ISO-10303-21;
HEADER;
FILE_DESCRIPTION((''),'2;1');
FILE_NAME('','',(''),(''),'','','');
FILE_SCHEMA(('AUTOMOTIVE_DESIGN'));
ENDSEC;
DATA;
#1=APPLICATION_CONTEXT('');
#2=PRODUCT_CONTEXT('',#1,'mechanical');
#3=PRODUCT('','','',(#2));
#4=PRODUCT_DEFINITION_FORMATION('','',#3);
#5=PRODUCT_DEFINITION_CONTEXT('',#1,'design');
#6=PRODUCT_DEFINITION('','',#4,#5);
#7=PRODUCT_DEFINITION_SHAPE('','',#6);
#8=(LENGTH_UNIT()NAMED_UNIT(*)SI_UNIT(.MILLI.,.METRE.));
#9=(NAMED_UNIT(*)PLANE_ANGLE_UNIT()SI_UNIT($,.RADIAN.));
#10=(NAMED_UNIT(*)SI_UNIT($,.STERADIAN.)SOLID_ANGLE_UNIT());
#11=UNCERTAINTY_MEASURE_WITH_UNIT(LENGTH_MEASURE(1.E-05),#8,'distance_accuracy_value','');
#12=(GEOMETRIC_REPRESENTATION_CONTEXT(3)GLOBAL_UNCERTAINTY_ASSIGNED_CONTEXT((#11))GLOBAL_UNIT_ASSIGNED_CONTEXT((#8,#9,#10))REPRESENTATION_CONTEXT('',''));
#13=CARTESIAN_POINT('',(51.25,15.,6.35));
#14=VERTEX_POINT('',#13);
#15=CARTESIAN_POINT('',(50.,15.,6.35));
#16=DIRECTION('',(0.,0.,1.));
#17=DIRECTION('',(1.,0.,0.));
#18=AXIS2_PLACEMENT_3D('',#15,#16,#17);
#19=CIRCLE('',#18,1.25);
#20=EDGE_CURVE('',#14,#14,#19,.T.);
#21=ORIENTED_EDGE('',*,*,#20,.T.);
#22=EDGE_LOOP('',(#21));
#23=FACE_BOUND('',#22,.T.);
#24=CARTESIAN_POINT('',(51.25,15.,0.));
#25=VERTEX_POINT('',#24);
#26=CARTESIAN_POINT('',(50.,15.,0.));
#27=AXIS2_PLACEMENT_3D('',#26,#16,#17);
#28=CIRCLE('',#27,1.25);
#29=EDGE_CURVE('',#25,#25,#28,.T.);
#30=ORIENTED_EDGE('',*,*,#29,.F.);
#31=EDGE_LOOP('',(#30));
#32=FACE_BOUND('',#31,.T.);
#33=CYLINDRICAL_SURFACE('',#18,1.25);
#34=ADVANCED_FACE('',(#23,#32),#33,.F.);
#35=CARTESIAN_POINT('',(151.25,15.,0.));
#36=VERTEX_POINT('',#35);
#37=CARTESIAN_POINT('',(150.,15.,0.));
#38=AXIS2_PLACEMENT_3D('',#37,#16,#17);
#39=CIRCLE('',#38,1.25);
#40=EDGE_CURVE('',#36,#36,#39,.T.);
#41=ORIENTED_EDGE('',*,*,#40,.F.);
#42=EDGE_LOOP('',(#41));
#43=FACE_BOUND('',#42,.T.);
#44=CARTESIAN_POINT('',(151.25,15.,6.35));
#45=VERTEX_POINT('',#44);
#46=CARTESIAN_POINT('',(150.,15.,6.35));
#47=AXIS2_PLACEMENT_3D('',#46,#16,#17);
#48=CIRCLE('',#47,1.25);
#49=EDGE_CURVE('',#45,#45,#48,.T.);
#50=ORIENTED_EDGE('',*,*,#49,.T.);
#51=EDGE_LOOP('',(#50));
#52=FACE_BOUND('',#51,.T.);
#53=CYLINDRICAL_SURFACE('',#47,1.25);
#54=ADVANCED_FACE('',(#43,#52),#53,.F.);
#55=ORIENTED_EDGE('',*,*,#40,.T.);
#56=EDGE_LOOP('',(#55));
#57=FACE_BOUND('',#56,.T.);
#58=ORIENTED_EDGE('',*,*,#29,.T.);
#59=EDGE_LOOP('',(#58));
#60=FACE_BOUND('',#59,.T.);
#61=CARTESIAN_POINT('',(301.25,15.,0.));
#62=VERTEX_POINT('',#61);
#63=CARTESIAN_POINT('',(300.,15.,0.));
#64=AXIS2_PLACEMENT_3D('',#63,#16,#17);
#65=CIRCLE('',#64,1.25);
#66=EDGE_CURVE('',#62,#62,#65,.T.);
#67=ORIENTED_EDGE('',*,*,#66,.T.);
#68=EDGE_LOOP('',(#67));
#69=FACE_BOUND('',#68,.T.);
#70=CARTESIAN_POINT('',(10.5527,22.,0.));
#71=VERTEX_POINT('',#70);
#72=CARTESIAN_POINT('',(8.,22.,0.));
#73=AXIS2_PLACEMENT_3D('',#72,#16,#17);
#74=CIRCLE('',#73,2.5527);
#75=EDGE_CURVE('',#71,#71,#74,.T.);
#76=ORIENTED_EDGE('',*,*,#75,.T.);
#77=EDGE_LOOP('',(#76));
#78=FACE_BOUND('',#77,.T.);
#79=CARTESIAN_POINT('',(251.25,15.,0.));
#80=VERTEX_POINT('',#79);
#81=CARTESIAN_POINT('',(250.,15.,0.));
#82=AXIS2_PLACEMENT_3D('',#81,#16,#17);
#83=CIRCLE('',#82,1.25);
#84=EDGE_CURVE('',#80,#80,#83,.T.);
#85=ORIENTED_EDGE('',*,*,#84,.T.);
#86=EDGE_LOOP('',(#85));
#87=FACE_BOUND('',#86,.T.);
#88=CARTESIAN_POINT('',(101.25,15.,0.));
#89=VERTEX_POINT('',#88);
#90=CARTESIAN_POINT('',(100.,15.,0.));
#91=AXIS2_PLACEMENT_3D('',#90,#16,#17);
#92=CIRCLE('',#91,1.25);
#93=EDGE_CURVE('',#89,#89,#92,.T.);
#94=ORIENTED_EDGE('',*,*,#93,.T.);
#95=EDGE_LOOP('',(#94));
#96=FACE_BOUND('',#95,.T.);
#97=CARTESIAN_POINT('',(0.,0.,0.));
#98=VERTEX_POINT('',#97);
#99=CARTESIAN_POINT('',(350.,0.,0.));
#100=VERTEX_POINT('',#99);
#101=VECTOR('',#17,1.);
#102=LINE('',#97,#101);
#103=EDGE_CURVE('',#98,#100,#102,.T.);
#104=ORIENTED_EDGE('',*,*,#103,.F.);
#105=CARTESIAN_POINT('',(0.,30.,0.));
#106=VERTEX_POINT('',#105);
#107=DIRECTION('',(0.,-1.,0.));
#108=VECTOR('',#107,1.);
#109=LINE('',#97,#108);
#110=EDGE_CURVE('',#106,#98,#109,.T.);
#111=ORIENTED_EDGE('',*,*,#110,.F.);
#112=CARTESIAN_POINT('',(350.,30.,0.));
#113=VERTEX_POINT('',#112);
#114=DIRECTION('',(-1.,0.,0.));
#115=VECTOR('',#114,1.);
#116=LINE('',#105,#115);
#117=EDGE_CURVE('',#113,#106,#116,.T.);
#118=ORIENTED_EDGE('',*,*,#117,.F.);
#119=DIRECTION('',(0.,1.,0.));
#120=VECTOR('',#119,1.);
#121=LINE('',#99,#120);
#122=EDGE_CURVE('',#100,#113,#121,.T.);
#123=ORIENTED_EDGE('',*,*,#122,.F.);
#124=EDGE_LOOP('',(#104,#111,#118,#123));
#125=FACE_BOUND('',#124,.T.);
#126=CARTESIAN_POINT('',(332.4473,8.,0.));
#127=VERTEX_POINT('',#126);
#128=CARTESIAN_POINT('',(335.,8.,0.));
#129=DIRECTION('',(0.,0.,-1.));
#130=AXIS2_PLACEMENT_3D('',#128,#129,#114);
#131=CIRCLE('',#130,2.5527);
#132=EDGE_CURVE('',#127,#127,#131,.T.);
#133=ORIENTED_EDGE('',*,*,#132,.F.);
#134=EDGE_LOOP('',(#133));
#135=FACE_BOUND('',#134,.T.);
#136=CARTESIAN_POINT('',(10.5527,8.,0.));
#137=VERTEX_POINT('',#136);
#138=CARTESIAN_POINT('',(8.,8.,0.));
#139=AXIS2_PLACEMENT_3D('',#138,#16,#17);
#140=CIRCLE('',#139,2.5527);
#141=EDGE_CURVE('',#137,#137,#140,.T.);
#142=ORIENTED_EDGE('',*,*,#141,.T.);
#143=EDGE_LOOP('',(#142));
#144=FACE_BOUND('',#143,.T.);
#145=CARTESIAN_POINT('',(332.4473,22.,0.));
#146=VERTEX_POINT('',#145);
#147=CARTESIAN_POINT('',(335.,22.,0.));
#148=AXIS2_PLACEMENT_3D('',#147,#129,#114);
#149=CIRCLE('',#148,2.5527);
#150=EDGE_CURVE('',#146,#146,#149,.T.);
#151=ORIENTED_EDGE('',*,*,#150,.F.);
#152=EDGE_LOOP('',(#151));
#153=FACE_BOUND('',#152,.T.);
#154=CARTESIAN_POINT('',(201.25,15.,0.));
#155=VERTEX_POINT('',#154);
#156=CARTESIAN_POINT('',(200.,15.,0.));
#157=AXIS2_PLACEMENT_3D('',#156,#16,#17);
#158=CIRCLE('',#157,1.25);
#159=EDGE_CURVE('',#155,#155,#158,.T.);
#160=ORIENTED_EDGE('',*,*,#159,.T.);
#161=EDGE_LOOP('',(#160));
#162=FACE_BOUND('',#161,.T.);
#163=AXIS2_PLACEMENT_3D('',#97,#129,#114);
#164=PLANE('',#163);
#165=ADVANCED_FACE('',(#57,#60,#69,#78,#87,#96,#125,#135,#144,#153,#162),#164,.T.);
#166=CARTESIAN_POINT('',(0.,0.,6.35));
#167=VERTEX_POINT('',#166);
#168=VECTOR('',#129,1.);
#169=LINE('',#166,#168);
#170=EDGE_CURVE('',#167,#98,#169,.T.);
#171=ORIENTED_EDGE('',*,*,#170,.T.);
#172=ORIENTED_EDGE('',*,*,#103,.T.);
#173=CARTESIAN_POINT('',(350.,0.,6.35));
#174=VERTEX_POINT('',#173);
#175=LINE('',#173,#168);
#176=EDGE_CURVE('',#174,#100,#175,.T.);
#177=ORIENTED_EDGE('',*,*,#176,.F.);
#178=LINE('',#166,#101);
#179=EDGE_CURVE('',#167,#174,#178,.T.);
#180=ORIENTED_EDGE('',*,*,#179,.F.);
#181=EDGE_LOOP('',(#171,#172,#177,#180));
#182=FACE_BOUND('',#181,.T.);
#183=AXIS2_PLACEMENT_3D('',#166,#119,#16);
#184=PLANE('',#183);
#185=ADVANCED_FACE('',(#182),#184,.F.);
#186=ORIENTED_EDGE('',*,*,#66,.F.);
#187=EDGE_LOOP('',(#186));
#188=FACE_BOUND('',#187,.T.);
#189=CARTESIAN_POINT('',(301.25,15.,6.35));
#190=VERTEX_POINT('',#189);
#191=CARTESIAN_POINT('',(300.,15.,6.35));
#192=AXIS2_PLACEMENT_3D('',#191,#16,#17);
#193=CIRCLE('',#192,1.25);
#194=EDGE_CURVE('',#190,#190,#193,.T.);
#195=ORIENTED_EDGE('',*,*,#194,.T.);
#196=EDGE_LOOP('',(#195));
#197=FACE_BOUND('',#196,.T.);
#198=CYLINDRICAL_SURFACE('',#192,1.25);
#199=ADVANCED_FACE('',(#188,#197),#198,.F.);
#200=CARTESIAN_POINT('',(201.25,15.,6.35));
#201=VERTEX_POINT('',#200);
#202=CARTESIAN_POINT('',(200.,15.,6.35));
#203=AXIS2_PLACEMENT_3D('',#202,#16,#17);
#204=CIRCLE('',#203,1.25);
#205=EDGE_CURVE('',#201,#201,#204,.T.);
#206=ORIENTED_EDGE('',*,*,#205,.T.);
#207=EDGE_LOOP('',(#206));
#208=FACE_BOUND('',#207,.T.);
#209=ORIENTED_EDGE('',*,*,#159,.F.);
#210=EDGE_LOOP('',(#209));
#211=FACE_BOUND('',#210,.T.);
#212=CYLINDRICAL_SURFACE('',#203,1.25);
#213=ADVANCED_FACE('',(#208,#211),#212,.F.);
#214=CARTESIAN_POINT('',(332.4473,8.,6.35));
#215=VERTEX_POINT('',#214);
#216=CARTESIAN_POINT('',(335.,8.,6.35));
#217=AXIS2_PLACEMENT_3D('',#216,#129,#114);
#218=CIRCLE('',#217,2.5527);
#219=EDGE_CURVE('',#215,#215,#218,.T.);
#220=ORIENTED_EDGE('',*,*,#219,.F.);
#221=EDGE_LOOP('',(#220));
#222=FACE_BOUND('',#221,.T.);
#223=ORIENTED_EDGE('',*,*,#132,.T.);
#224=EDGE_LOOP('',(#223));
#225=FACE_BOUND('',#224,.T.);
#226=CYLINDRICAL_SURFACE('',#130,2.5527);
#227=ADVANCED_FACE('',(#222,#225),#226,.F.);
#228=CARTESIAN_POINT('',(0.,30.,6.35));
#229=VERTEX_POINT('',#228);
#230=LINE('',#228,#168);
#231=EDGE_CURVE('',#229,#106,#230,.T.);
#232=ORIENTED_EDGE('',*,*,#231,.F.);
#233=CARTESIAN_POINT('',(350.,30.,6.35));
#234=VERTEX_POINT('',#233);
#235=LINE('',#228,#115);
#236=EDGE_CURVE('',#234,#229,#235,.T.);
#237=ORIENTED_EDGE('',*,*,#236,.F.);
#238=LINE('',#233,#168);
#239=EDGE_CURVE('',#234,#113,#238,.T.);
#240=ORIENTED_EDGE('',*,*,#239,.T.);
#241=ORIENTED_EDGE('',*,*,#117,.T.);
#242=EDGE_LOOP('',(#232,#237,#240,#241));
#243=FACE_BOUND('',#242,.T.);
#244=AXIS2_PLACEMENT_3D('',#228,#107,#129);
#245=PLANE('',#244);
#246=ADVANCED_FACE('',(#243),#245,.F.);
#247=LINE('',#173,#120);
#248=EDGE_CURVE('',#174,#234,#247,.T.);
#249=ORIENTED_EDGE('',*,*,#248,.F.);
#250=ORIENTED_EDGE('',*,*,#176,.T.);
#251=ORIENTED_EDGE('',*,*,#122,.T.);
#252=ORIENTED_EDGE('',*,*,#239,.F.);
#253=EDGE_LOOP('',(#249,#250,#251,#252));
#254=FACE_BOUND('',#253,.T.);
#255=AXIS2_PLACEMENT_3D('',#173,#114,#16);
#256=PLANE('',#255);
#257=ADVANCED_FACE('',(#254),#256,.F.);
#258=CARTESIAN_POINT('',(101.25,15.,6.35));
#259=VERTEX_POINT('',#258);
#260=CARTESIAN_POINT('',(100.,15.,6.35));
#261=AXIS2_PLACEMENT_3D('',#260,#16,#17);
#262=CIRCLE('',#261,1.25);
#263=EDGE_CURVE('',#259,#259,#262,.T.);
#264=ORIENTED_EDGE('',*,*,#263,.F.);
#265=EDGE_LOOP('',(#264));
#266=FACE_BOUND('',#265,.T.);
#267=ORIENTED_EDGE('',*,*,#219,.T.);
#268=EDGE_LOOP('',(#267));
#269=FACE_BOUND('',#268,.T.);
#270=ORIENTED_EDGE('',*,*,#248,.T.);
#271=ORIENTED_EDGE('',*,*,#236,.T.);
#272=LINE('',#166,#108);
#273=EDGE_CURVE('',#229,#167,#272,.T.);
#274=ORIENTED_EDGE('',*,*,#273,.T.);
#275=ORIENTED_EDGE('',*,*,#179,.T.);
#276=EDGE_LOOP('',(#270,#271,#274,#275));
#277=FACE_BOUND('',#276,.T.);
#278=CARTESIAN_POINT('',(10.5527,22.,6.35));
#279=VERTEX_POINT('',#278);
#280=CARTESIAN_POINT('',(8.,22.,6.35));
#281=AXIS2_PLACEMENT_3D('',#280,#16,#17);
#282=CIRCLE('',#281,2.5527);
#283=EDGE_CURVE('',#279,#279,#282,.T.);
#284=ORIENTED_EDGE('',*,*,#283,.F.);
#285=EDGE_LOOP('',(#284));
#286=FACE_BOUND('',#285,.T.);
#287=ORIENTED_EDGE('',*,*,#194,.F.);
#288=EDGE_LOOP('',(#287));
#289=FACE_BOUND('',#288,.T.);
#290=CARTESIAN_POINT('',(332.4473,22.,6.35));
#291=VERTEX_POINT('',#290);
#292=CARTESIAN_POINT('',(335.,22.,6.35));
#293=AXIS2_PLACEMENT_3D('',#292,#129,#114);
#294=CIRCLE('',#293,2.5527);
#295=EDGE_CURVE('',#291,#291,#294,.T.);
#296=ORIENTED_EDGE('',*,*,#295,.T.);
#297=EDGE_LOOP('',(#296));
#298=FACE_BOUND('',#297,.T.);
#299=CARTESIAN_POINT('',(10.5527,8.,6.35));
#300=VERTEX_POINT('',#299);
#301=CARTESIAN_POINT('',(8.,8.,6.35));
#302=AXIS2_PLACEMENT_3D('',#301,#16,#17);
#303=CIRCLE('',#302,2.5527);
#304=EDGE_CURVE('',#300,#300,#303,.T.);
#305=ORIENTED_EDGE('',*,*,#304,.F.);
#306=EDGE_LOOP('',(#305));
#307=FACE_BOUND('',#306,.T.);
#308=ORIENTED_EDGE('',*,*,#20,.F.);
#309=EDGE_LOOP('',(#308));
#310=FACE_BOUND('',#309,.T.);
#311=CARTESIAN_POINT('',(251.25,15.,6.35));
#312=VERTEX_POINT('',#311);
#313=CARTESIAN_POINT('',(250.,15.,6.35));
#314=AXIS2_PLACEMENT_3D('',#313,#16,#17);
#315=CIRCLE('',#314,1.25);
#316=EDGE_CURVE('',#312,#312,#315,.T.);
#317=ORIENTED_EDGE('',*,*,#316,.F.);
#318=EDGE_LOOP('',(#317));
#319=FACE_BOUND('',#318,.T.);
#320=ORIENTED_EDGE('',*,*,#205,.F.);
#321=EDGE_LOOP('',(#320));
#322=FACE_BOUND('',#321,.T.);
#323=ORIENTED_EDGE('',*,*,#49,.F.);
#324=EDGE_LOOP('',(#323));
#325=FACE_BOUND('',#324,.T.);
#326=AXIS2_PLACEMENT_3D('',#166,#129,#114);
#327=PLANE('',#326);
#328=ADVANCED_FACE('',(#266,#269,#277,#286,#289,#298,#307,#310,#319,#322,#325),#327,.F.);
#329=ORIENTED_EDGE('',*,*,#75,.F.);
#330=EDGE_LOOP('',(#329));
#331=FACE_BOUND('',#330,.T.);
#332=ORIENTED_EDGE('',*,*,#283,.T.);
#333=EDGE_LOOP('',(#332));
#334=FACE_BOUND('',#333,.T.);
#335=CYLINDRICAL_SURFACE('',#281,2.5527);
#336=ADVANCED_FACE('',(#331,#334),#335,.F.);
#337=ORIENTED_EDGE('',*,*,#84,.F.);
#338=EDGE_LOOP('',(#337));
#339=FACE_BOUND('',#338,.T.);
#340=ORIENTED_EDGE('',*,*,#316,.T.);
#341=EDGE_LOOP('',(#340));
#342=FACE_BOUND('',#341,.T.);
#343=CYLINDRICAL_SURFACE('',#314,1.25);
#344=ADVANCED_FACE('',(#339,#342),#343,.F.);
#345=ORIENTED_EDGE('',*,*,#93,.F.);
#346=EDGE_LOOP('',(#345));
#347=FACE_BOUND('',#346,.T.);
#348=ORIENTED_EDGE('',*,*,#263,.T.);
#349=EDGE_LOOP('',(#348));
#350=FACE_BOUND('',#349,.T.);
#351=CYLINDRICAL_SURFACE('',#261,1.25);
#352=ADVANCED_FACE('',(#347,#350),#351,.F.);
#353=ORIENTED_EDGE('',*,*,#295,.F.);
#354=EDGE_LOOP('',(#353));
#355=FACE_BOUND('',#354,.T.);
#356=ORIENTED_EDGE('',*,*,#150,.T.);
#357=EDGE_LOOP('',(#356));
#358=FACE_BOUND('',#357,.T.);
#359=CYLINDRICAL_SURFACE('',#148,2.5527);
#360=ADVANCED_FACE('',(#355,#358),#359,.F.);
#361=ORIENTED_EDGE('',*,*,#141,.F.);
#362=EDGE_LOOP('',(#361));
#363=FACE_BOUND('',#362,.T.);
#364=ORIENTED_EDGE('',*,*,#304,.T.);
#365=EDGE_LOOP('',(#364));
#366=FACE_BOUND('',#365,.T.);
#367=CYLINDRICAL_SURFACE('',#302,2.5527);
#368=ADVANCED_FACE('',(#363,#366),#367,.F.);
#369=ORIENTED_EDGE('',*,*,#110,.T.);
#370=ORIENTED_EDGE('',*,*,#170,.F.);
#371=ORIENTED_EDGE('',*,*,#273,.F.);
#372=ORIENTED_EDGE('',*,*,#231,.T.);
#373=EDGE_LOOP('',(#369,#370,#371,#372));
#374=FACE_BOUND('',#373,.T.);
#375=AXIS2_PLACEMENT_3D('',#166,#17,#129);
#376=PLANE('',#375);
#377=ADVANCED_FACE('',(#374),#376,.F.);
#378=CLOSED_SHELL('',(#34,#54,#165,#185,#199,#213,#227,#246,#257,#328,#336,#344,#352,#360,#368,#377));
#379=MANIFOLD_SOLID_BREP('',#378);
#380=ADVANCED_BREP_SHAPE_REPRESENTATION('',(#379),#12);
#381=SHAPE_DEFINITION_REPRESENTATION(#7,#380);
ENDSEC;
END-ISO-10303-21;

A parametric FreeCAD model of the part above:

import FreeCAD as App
import Part
import Sketcher


def add_polygon(sketch, points):
    """Adds a closed chain of lines whose ends are joined by coincident constraints."""
    first, n = sketch.GeometryCount, len(points)
    for a, b in zip(points, points[1:] + points[:1]):
        sketch.addGeometry(Part.LineSegment(App.Vector(*a, 0), App.Vector(*b, 0)), False)
    for i in range(n):
        sketch.addConstraint(Sketcher.Constraint("Coincident", first + i, 2, first + (i + 1) % n, 1))

doc = App.newDocument("Part")
params = doc.addObject("Spreadsheet::Sheet", "Params")
for row, (alias, value) in enumerate([
    ("sketch1_width", "350 mm"),
    ("sketch1_height", "30 mm"),
    ("pad1_length", "6.35 mm"),
    ("hole_diameter", "5.1054 mm"),
    ("sketch3_diameter", "2.5 mm"),
    ("hole2_diameter", "2.5 mm"),
    ("linearpattern_pitch", "50 mm"),
    ("hole3_diameter", "5.1054 mm"),
], start=1):
    params.set(f"A{row}", alias)
    params.set(f"B{row}", "=" + value)
    params.setAlias(f"B{row}", alias)

body = doc.addObject("PartDesign::Body", "Body")

# Sketch on XY plane
sketch1 = body.newObject("Sketcher::SketchObject", "Sketch")
sketch1.AttachmentSupport = (doc.getObject("XY_Plane"), [""])
sketch1.MapMode = "FlatFace"
add_polygon(sketch1, [(0, 30), (0, 0), (350, 0), (350, 30)])  # lines 0-3
sketch1.addConstraint([
    Sketcher.Constraint("Vertical", 0),
    Sketcher.Constraint("Horizontal", 1),
    Sketcher.Constraint("Vertical", 2),
    Sketcher.Constraint("Horizontal", 3),
    Sketcher.Constraint("Coincident", 0, 2, -1, 1),
    Sketcher.Constraint("DistanceX", 1, 1, 1, 2, 350.0),
    Sketcher.Constraint("DistanceY", 0, 2, 0, 1, 30.0),
])
sketch1.setExpression("Constraints[9]", "Params.sketch1_width")
sketch1.setExpression("Constraints[10]", "Params.sketch1_height")
pad1 = body.newObject("PartDesign::Pad", "Pad")
pad1.Profile = sketch1
pad1.setExpression("Length", "Params.pad1_length")

# Sketch on XY plane
sketch2 = body.newObject("Sketcher::SketchObject", "Sketch001")
sketch2.AttachmentSupport = (doc.getObject("XY_Plane"), [""])
sketch2.MapMode = "FlatFace"
sketch2.AttachmentOffset = App.Placement(App.Vector(0, 0, 6.35), App.Rotation())
sketch2.addGeometry([
    Part.Circle(App.Vector(8, 22, 0), App.Vector(0, 0, 1), 2.6),
    Part.Circle(App.Vector(8, 8, 0), App.Vector(0, 0, 1), 2.6),
], False)
sketch2.addConstraint([
    Sketcher.Constraint("Equal", 0, 1),
    Sketcher.Constraint("Vertical", 0, 3, 1, 3),
    Sketcher.Constraint("DistanceX", -1, 1, 0, 3, 8.0),
    Sketcher.Constraint("DistanceY", -1, 1, 0, 3, 22.0),
    Sketcher.Constraint("DistanceY", -1, 1, 1, 3, 8.0),
    Sketcher.Constraint("Diameter", 0, 5.1054),
])
doc.recompute()
hole = body.newObject("PartDesign::Hole", "Hole")
hole.Profile = sketch2
hole.ThreadType = "None"
hole.setExpression("Diameter", "Params.hole_diameter")
hole.DepthType = "ThroughAll"

# Sketch on XY plane
sketch3 = body.newObject("Sketcher::SketchObject", "Sketch002")
sketch3.AttachmentSupport = (doc.getObject("XY_Plane"), [""])
sketch3.MapMode = "FlatFace"
sketch3.AttachmentOffset = App.Placement(App.Vector(0, 0, 6.35), App.Rotation())
sketch3.addGeometry(Part.Circle(App.Vector(50, 15, 0), App.Vector(0, 0, 1), 1.2), False)
sketch3.addConstraint([
    Sketcher.Constraint("Diameter", 0, 2.5),
    Sketcher.Constraint("DistanceX", -1, 1, 0, 3, 50.0),
    Sketcher.Constraint("DistanceY", -1, 1, 0, 3, 15.0),
])
sketch3.setExpression("Constraints[0]", "Params.sketch3_diameter")
doc.recompute()
hole2 = body.newObject("PartDesign::Hole", "Hole001")
hole2.Profile = sketch3
hole2.ThreadType = "None"
hole2.setExpression("Diameter", "Params.hole2_diameter")
hole2.DepthType = "ThroughAll"
doc.recompute()

linearpattern = body.newObject("PartDesign::LinearPattern", "LinearPattern")
linearpattern.Originals = [hole2]
linearpattern.Direction = (doc.getObject("X_Axis"), [""])
linearpattern.Mode = "offset"
linearpattern.setExpression("Offset", "Params.linearpattern_pitch")
linearpattern.Occurrences = 6
body.Tip = linearpattern

# Sketch on XY plane
sketch4 = body.newObject("Sketcher::SketchObject", "Sketch003")
sketch4.AttachmentSupport = (doc.getObject("XY_Plane"), [""])
sketch4.MapMode = "FlatFace"
sketch4.addGeometry([
    Part.Circle(App.Vector(335, 22, 0), App.Vector(0, 0, 1), 2.6),
    Part.Circle(App.Vector(335, 8, 0), App.Vector(0, 0, 1), 2.6),
], False)
sketch4.addConstraint([
    Sketcher.Constraint("Equal", 0, 1),
    Sketcher.Constraint("Vertical", 0, 3, 1, 3),
    Sketcher.Constraint("DistanceX", -1, 1, 0, 3, 335.0),
    Sketcher.Constraint("DistanceY", -1, 1, 0, 3, 22.0),
    Sketcher.Constraint("DistanceY", -1, 1, 1, 3, 8.0),
    Sketcher.Constraint("Diameter", 0, 5.1054),
])
doc.recompute()
hole3 = body.newObject("PartDesign::Hole", "Hole002")
hole3.Profile = sketch4
hole3.ThreadType = "None"
hole3.setExpression("Diameter", "Params.hole3_diameter")
hole3.DepthType = "ThroughAll"
hole3.Reversed = True

doc.recompute()
